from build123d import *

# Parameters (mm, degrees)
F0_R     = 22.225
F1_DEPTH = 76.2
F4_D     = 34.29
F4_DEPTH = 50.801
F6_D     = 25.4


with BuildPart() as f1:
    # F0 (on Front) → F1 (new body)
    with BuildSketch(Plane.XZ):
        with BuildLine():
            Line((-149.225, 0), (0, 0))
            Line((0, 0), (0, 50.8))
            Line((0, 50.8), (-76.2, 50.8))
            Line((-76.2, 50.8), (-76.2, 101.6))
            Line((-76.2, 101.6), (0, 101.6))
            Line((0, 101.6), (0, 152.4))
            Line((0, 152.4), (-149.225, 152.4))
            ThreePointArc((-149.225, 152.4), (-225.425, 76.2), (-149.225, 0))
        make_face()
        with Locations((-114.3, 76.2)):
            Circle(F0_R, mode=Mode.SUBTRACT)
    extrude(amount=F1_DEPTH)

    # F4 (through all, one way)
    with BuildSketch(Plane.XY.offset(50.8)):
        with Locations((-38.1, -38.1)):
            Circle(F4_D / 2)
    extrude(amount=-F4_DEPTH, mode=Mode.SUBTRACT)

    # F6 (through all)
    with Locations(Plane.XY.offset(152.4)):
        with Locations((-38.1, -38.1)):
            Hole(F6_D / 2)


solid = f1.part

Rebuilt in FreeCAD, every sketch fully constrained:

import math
import FreeCAD as App
import Part
import Sketcher

V = App.Vector
Q = App.Units.Quantity

doc = App.newDocument("Part")
body = doc.addObject("PartDesign::Body", "Body")

sketch1 = doc.addObject("Sketcher::SketchObject", "Sketch")
body.addObject(sketch1)
sketch1.AttachmentSupport = (doc.XZ_Plane, [""])
sketch1.MapMode = "FlatFace"
sketch1.addGeometry([
    Part.LineSegment(V(-149, 0, 0), V(0, 0, 0)),
    Part.LineSegment(V(0, 0, 0), V(0, 51, 0)),
    Part.LineSegment(V(0, 51, 0), V(-76, 51, 0)),
    Part.LineSegment(V(-76, 51, 0), V(-76, 102, 0)),
    Part.LineSegment(V(-76, 102, 0), V(0, 102, 0)),
    Part.LineSegment(V(0, 102, 0), V(0, 152, 0)),
    Part.LineSegment(V(0, 152, 0), V(-149, 152, 0)),
    Part.ArcOfCircle(Part.Circle(V(-149, 76, 0), V(0, 0, 1), 76), math.radians(90), math.radians(270)),
    Part.Circle(V(-114, 76, 0), V(0, 0, 1), 22),
], False)
sketch1.addConstraint([
    Sketcher.Constraint("Coincident", 0, 2, 1, 1),
    Sketcher.Constraint("Coincident", 1, 2, 2, 1),
    Sketcher.Constraint("Coincident", 2, 2, 3, 1),
    Sketcher.Constraint("Coincident", 3, 2, 4, 1),
    Sketcher.Constraint("Coincident", 4, 2, 5, 1),
    Sketcher.Constraint("Coincident", 5, 2, 6, 1),
    Sketcher.Constraint("Tangent", 6, 2, 7, 1),
    Sketcher.Constraint("Tangent", 7, 2, 0, 1),
    Sketcher.Constraint("Horizontal", 0),
    Sketcher.Constraint("Vertical", 1),
    Sketcher.Constraint("Horizontal", 2),
    Sketcher.Constraint("Vertical", 3),
    Sketcher.Constraint("Horizontal", 4),
    Sketcher.Constraint("Vertical", 5),
    Sketcher.Constraint("Horizontal", 6),
    Sketcher.Constraint("Coincident", 0, 2, -1, 1),
    Sketcher.Constraint("PointOnObject", 4, 2, -2),
    Sketcher.Constraint("Horizontal", 7, 3, 8, 3),
    Sketcher.Constraint("Equal", 1, 3),
    Sketcher.Constraint("Equal", 3, 5),
    Sketcher.Constraint("Radius", 7, Q("3 in")),
    Sketcher.Constraint("Diameter", 8, Q("1.75 in")),
    Sketcher.Constraint("DistanceX", 2, 2, 2, 1, Q("3 in")),
    Sketcher.Constraint("DistanceX", 8, 3, -1, 1, Q("4.5 in")),
    Sketcher.Constraint("DistanceX", 0, 1, 0, 2, Q("5.875 in")),
])
pad1 = doc.addObject("PartDesign::Pad", "Pad")
body.addObject(pad1)
pad1.Profile = sketch1
pad1.Length = Q("3 in")

sketch2 = doc.addObject("Sketcher::SketchObject", "Sketch001")
body.addObject(sketch2)
sketch2.AttachmentSupport = (doc.XY_Plane, [""])
sketch2.MapMode = "FlatFace"
sketch2.AttachmentOffset = App.Placement(V(0, 0, 2 * 25.4), App.Rotation())
sketch2.addGeometry(Part.Circle(V(-38, -38, 0), V(0, 0, 1), 17), False)
sketch2.addConstraint([
    Sketcher.Constraint("Diameter", 0, Q("1.35 in")),
    Sketcher.Constraint("DistanceX", 0, 3, -1, 1, Q("1.5 in")),
    Sketcher.Constraint("DistanceY", 0, 3, -1, 1, Q("1.5 in")),
])
pocket1 = doc.addObject("PartDesign::Pocket", "Pocket")
body.addObject(pocket1)
pocket1.Profile = sketch2
pocket1.Type = "ThroughAll"

sketch3 = doc.addObject("Sketcher::SketchObject", "Sketch002")
body.addObject(sketch3)
sketch3.AttachmentSupport = (doc.XY_Plane, [""])
sketch3.MapMode = "FlatFace"
sketch3.AttachmentOffset = App.Placement(V(0, 0, 6 * 25.4), App.Rotation())
sketch3.addGeometry(Part.Circle(V(-38, -38, 0), V(0, 0, 1), 13), False)
sketch3.addConstraint([
    Sketcher.Constraint("Diameter", 0, Q("1 in")),
    Sketcher.Constraint("DistanceX", 0, 3, -1, 1, Q("1.5 in")),
    Sketcher.Constraint("DistanceY", 0, 3, -1, 1, Q("1.5 in")),
])
doc.recompute()
hole = doc.addObject("PartDesign::Hole", "Hole")
body.addObject(hole)
hole.Profile = sketch3
hole.ThreadType = "None"
hole.Diameter = Q("1 in")
hole.DepthType = "ThroughAll"

doc.recompute()
